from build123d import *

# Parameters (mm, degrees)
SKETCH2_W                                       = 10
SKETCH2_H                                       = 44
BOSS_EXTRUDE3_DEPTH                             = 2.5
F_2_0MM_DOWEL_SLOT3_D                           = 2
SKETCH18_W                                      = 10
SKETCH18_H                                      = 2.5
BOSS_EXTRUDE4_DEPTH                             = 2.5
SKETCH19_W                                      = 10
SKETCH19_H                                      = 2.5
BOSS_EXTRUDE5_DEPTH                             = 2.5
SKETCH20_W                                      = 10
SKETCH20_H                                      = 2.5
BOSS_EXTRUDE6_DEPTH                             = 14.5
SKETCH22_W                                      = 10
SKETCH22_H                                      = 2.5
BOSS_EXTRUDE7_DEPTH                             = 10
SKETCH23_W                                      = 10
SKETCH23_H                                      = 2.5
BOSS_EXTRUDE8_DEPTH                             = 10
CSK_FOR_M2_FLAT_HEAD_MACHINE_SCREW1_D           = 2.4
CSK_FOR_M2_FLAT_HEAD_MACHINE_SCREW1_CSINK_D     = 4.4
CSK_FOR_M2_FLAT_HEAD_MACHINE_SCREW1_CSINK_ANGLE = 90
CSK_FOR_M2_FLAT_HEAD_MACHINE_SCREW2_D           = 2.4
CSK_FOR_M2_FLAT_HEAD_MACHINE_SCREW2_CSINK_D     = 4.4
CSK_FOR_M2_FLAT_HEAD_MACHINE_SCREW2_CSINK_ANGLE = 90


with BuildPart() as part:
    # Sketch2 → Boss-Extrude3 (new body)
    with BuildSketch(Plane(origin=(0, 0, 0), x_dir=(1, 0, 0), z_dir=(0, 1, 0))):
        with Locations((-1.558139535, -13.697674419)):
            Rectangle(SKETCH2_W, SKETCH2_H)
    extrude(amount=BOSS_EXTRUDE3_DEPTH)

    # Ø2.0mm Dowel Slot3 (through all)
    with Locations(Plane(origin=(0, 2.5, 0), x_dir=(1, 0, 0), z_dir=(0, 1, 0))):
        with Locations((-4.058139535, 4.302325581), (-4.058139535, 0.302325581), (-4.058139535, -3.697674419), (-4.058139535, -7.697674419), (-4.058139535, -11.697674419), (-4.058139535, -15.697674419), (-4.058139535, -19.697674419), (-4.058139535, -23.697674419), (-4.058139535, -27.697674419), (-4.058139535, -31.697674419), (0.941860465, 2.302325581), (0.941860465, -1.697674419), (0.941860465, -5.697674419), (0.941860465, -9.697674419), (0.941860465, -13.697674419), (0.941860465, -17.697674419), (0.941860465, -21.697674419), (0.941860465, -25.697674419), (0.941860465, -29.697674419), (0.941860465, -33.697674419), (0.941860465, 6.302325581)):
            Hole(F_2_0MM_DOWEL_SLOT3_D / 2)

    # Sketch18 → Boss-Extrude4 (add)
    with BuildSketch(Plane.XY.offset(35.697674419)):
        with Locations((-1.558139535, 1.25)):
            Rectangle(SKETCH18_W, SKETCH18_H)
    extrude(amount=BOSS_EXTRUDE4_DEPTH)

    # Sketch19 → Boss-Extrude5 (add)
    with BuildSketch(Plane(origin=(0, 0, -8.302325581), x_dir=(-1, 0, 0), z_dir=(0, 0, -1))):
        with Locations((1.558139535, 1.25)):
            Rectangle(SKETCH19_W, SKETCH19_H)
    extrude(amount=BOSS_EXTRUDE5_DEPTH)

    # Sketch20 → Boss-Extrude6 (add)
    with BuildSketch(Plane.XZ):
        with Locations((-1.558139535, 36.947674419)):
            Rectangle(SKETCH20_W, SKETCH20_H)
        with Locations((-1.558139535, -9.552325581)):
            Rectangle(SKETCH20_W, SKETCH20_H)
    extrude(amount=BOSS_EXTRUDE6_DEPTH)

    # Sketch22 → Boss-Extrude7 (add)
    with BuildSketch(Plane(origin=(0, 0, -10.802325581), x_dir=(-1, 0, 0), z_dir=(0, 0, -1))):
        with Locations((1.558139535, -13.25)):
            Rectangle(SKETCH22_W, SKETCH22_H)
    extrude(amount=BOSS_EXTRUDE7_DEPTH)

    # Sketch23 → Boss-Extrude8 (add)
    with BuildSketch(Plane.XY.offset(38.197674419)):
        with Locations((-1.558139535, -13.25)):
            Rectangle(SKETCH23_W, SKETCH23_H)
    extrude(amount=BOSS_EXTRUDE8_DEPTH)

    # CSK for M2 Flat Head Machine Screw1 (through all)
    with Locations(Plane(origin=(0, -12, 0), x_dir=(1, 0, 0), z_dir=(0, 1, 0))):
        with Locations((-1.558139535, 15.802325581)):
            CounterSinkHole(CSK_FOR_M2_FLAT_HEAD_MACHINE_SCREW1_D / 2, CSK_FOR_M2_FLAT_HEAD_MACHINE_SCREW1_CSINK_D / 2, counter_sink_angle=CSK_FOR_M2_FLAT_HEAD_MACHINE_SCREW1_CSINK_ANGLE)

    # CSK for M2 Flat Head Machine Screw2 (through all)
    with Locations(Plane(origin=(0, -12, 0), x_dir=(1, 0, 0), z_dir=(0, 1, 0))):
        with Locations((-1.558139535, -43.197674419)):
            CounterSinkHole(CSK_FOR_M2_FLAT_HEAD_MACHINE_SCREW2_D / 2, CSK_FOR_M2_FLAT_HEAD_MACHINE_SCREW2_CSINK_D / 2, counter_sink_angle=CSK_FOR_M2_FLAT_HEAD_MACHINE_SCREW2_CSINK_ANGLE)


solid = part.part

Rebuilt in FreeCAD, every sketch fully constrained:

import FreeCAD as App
import Part
import Sketcher

V = App.Vector
Q = App.Units.Quantity


def add_polygon(sketch, points):
    """Adds a closed chain of lines whose ends are joined by coincident constraints."""
    first, n = sketch.GeometryCount, len(points)
    for a, b in zip(points, points[1:] + points[:1]):
        sketch.addGeometry(Part.LineSegment(App.Vector(*a, 0), App.Vector(*b, 0)), False)
    for i in range(n):
        sketch.addConstraint(Sketcher.Constraint("Coincident", first + i, 2, first + (i + 1) % n, 1))

doc = App.newDocument("Part")
body = doc.addObject("PartDesign::Body", "Body")

# Sketch on XZ plane
sketch1 = doc.addObject("Sketcher::SketchObject", "Sketch")
body.addObject(sketch1)
sketch1.AttachmentSupport = (doc.XZ_Plane, [""])
sketch1.MapMode = "FlatFace"
add_polygon(sketch1, [(-7, -8), (-7, 36), (3, 36), (3, -8)])  # lines 0-3
sketch1.addConstraint(Sketcher.Constraint("Vertical", 0))
sketch1.addConstraint(Sketcher.Constraint("Horizontal", 1))
sketch1.addConstraint(Sketcher.Constraint("Vertical", 2))
sketch1.addConstraint(Sketcher.Constraint("Horizontal", 3))
sketch1.addConstraint(Sketcher.Constraint("DistanceX", 1, 1, 1, 2, Q("10 mm")))
sketch1.addConstraint(Sketcher.Constraint("DistanceY", 0, 1, 0, 2, Q("44 mm")))
sketch1.addConstraint(Sketcher.Constraint("DistanceX", 0, 2, -1, 1, Q("6.55814 mm")))
sketch1.addConstraint(Sketcher.Constraint("DistanceY", -1, 1, 0, 2, Q("35.697674 mm")))
pad1 = doc.addObject("PartDesign::Pad", "Pad")
body.addObject(pad1)
pad1.Profile = sketch1
pad1.Length = 2.5
pad1.Reversed = True

# Sketch on XZ plane
sketch2 = doc.addObject("Sketcher::SketchObject", "Sketch001")
body.addObject(sketch2)
sketch2.AttachmentSupport = (doc.XZ_Plane, [""])
sketch2.MapMode = "FlatFace"
sketch2.AttachmentOffset = App.Placement(V(0, 0, -2.5), App.Rotation())
sketch2.addGeometry(Part.Circle(V(-4.1, -4.3, 0), V(0, 0, 1), 1), False)
sketch2.addGeometry(Part.Circle(V(-4.1, -0.3, 0), V(0, 0, 1), 1), False)
sketch2.addGeometry(Part.Circle(V(-4.1, 3.7, 0), V(0, 0, 1), 1), False)
sketch2.addGeometry(Part.Circle(V(-4.1, 7.7, 0), V(0, 0, 1), 1), False)
sketch2.addGeometry(Part.Circle(V(-4.1, 11.7, 0), V(0, 0, 1), 1), False)
sketch2.addGeometry(Part.Circle(V(-4.1, 15.7, 0), V(0, 0, 1), 1), False)
sketch2.addGeometry(Part.Circle(V(-4.1, 19.7, 0), V(0, 0, 1), 1), False)
sketch2.addGeometry(Part.Circle(V(-4.1, 23.7, 0), V(0, 0, 1), 1), False)
sketch2.addGeometry(Part.Circle(V(-4.1, 27.7, 0), V(0, 0, 1), 1), False)
sketch2.addGeometry(Part.Circle(V(-4.1, 31.7, 0), V(0, 0, 1), 1), False)
sketch2.addGeometry(Part.Circle(V(0.9, -2.3, 0), V(0, 0, 1), 1), False)
sketch2.addGeometry(Part.Circle(V(0.9, 1.7, 0), V(0, 0, 1), 1), False)
sketch2.addGeometry(Part.Circle(V(0.9, 5.7, 0), V(0, 0, 1), 1), False)
sketch2.addGeometry(Part.Circle(V(0.9, 9.7, 0), V(0, 0, 1), 1), False)
sketch2.addGeometry(Part.Circle(V(0.9, 13.7, 0), V(0, 0, 1), 1), False)
sketch2.addGeometry(Part.Circle(V(0.9, 17.7, 0), V(0, 0, 1), 1), False)
sketch2.addGeometry(Part.Circle(V(0.9, 21.7, 0), V(0, 0, 1), 1), False)
sketch2.addGeometry(Part.Circle(V(0.9, 25.7, 0), V(0, 0, 1), 1), False)
sketch2.addGeometry(Part.Circle(V(0.9, 29.7, 0), V(0, 0, 1), 1), False)
sketch2.addGeometry(Part.Circle(V(0.9, 33.7, 0), V(0, 0, 1), 1), False)
sketch2.addGeometry(Part.Circle(V(0.9, -6.3, 0), V(0, 0, 1), 1), False)
sketch2.addConstraint(Sketcher.Constraint("Equal", 0, 1))
sketch2.addConstraint(Sketcher.Constraint("Equal", 1, 2))
sketch2.addConstraint(Sketcher.Constraint("Equal", 2, 3))
sketch2.addConstraint(Sketcher.Constraint("Equal", 3, 4))
sketch2.addConstraint(Sketcher.Constraint("Equal", 4, 5))
sketch2.addConstraint(Sketcher.Constraint("Equal", 5, 6))
sketch2.addConstraint(Sketcher.Constraint("Equal", 6, 7))
sketch2.addConstraint(Sketcher.Constraint("Equal", 7, 8))
sketch2.addConstraint(Sketcher.Constraint("Equal", 8, 9))
sketch2.addConstraint(Sketcher.Constraint("Equal", 9, 10))
sketch2.addConstraint(Sketcher.Constraint("Equal", 10, 11))
sketch2.addConstraint(Sketcher.Constraint("Equal", 11, 12))
sketch2.addConstraint(Sketcher.Constraint("Equal", 12, 13))
sketch2.addConstraint(Sketcher.Constraint("Equal", 13, 14))
sketch2.addConstraint(Sketcher.Constraint("Equal", 14, 15))
sketch2.addConstraint(Sketcher.Constraint("Equal", 15, 16))
sketch2.addConstraint(Sketcher.Constraint("Equal", 16, 17))
sketch2.addConstraint(Sketcher.Constraint("Equal", 17, 18))
sketch2.addConstraint(Sketcher.Constraint("Equal", 18, 19))
sketch2.addConstraint(Sketcher.Constraint("Equal", 19, 20))
sketch2.addConstraint(Sketcher.Constraint("Vertical", 0, 3, 1, 3))
sketch2.addConstraint(Sketcher.Constraint("Vertical", 1, 3, 2, 3))
sketch2.addConstraint(Sketcher.Constraint("Vertical", 2, 3, 3, 3))
sketch2.addConstraint(Sketcher.Constraint("Vertical", 3, 3, 4, 3))
sketch2.addConstraint(Sketcher.Constraint("Vertical", 4, 3, 5, 3))
sketch2.addConstraint(Sketcher.Constraint("Vertical", 5, 3, 6, 3))
sketch2.addConstraint(Sketcher.Constraint("Vertical", 6, 3, 7, 3))
sketch2.addConstraint(Sketcher.Constraint("Vertical", 7, 3, 8, 3))
sketch2.addConstraint(Sketcher.Constraint("Vertical", 8, 3, 9, 3))
sketch2.addConstraint(Sketcher.Constraint("Vertical", 10, 3, 11, 3))
sketch2.addConstraint(Sketcher.Constraint("Vertical", 11, 3, 12, 3))
sketch2.addConstraint(Sketcher.Constraint("Vertical", 12, 3, 13, 3))
sketch2.addConstraint(Sketcher.Constraint("Vertical", 13, 3, 14, 3))
sketch2.addConstraint(Sketcher.Constraint("Vertical", 14, 3, 15, 3))
sketch2.addConstraint(Sketcher.Constraint("Vertical", 15, 3, 16, 3))
sketch2.addConstraint(Sketcher.Constraint("Vertical", 16, 3, 17, 3))
sketch2.addConstraint(Sketcher.Constraint("Vertical", 17, 3, 18, 3))
sketch2.addConstraint(Sketcher.Constraint("Vertical", 18, 3, 19, 3))
sketch2.addConstraint(Sketcher.Constraint("Vertical", 19, 3, 20, 3))
sketch2.addConstraint(Sketcher.Constraint("Diameter", 0, Q("2 mm")))
sketch2.addConstraint(Sketcher.Constraint("DistanceY", 0, 3, 1, 3, Q("4 mm")))
sketch2.addConstraint(Sketcher.Constraint("DistanceY", 1, 3, 2, 3, Q("4 mm")))
sketch2.addConstraint(Sketcher.Constraint("DistanceY", 2, 3, 3, 3, Q("4 mm")))
sketch2.addConstraint(Sketcher.Constraint("DistanceY", 3, 3, 4, 3, Q("4 mm")))
sketch2.addConstraint(Sketcher.Constraint("DistanceY", 4, 3, 5, 3, Q("4 mm")))
sketch2.addConstraint(Sketcher.Constraint("DistanceY", 5, 3, 6, 3, Q("4 mm")))
sketch2.addConstraint(Sketcher.Constraint("DistanceY", 6, 3, 7, 3, Q("4 mm")))
sketch2.addConstraint(Sketcher.Constraint("DistanceY", 7, 3, 8, 3, Q("4 mm")))
sketch2.addConstraint(Sketcher.Constraint("DistanceY", 8, 3, 9, 3, Q("4 mm")))
sketch2.addConstraint(Sketcher.Constraint("DistanceX", 0, 3, 10, 3, Q("5 mm")))
sketch2.addConstraint(Sketcher.Constraint("DistanceY", 0, 3, 10, 3, Q("2 mm")))
sketch2.addConstraint(Sketcher.Constraint("DistanceY", 10, 3, 11, 3, Q("4 mm")))
sketch2.addConstraint(Sketcher.Constraint("DistanceY", 11, 3, 12, 3, Q("4 mm")))
sketch2.addConstraint(Sketcher.Constraint("DistanceY", 12, 3, 13, 3, Q("4 mm")))
sketch2.addConstraint(Sketcher.Constraint("DistanceY", 13, 3, 14, 3, Q("4 mm")))
sketch2.addConstraint(Sketcher.Constraint("DistanceY", 14, 3, 15, 3, Q("4 mm")))
sketch2.addConstraint(Sketcher.Constraint("DistanceY", 15, 3, 16, 3, Q("4 mm")))
sketch2.addConstraint(Sketcher.Constraint("DistanceY", 16, 3, 17, 3, Q("4 mm")))
sketch2.addConstraint(Sketcher.Constraint("DistanceY", 17, 3, 18, 3, Q("4 mm")))
sketch2.addConstraint(Sketcher.Constraint("DistanceY", 18, 3, 19, 3, Q("4 mm")))
sketch2.addConstraint(Sketcher.Constraint("DistanceY", 20, 3, 10, 3, Q("4 mm")))
sketch2.addConstraint(Sketcher.Constraint("DistanceX", 0, 3, -1, 1, Q("4.05814 mm")))
sketch2.addConstraint(Sketcher.Constraint("DistanceY", 0, 3, -1, 1, Q("4.302326 mm")))
doc.recompute()
hole = doc.addObject("PartDesign::Hole", "Hole")
body.addObject(hole)
hole.Profile = sketch2
hole.ThreadType = "None"
hole.Diameter = 2
hole.DepthType = "ThroughAll"
hole.Reversed = True

# Sketch on XY plane
sketch3 = doc.addObject("Sketcher::SketchObject", "Sketch002")
body.addObject(sketch3)
sketch3.AttachmentSupport = (doc.XY_Plane, [""])
sketch3.MapMode = "FlatFace"
sketch3.AttachmentOffset = App.Placement(V(0, 0, 35.697674), App.Rotation())
add_polygon(sketch3, [(-6.6, 2.5), (-6.6, 0), (3.4, 0), (3.4, 2.5)])  # lines 0-3
sketch3.addConstraint(Sketcher.Constraint("Vertical", 0))
sketch3.addConstraint(Sketcher.Constraint("Horizontal", 1))
sketch3.addConstraint(Sketcher.Constraint("Vertical", 2))
sketch3.addConstraint(Sketcher.Constraint("Horizontal", 3))
sketch3.addConstraint(Sketcher.Constraint("PointOnObject", 0, 2, -1))
sketch3.addConstraint(Sketcher.Constraint("DistanceX", 1, 1, 1, 2, Q("10 mm")))
sketch3.addConstraint(Sketcher.Constraint("DistanceY", 0, 2, 0, 1, Q("2.5 mm")))
sketch3.addConstraint(Sketcher.Constraint("DistanceX", 0, 2, -1, 1, Q("6.55814 mm")))
pad2 = doc.addObject("PartDesign::Pad", "Pad001")
body.addObject(pad2)
pad2.Profile = sketch3
pad2.Length = 2.5

# Sketch on XY plane
sketch4 = doc.addObject("Sketcher::SketchObject", "Sketch003")
body.addObject(sketch4)
sketch4.AttachmentSupport = (doc.XY_Plane, [""])
sketch4.MapMode = "FlatFace"
sketch4.AttachmentOffset = App.Placement(V(0, 0, -8.302326), App.Rotation())
add_polygon(sketch4, [(3.4, 2.5), (3.4, 0), (-6.6, 0), (-6.6, 2.5)])  # lines 0-3
sketch4.addConstraint(Sketcher.Constraint("Vertical", 0))
sketch4.addConstraint(Sketcher.Constraint("Horizontal", 1))
sketch4.addConstraint(Sketcher.Constraint("Vertical", 2))
sketch4.addConstraint(Sketcher.Constraint("Horizontal", 3))
sketch4.addConstraint(Sketcher.Constraint("PointOnObject", 0, 2, -1))
sketch4.addConstraint(Sketcher.Constraint("DistanceX", 1, 2, 1, 1, Q("10 mm")))
sketch4.addConstraint(Sketcher.Constraint("DistanceY", 0, 2, 0, 1, Q("2.5 mm")))
sketch4.addConstraint(Sketcher.Constraint("DistanceX", -1, 1, 0, 2, Q("3.44186 mm")))
pad3 = doc.addObject("PartDesign::Pad", "Pad002")
body.addObject(pad3)
pad3.Profile = sketch4
pad3.Length = 2.5
pad3.Reversed = True

# Sketch on XZ plane
sketch5 = doc.addObject("Sketcher::SketchObject", "Sketch004")
body.addObject(sketch5)
sketch5.AttachmentSupport = (doc.XZ_Plane, [""])
sketch5.MapMode = "FlatFace"
add_polygon(sketch5, [(-6.6, 38.2), (-6.6, 35.7), (3.4, 35.7), (3.4, 38.2)])  # lines 0-3
add_polygon(sketch5, [(-6.6, -8.3), (-6.6, -10.8), (3.4, -10.8), (3.4, -8.3)])  # lines 4-7
sketch5.addConstraint(Sketcher.Constraint("Vertical", 0))
sketch5.addConstraint(Sketcher.Constraint("Horizontal", 1))
sketch5.addConstraint(Sketcher.Constraint("Vertical", 2))
sketch5.addConstraint(Sketcher.Constraint("Horizontal", 3))
sketch5.addConstraint(Sketcher.Constraint("Vertical", 4))
sketch5.addConstraint(Sketcher.Constraint("Horizontal", 5))
sketch5.addConstraint(Sketcher.Constraint("Vertical", 6))
sketch5.addConstraint(Sketcher.Constraint("Horizontal", 7))
sketch5.addConstraint(Sketcher.Constraint("Vertical", 3, 2, 4, 2))
sketch5.addConstraint(Sketcher.Constraint("Vertical", 2, 2, 5, 2))
sketch5.addConstraint(Sketcher.Constraint("Equal", 2, 4))
sketch5.addConstraint(Sketcher.Constraint("DistanceX", 1, 1, 1, 2, Q("10 mm")))
sketch5.addConstraint(Sketcher.Constraint("DistanceY", 0, 2, 0, 1, Q("2.5 mm")))
sketch5.addConstraint(Sketcher.Constraint("DistanceY", 4, 2, 3, 2, Q("49 mm")))
sketch5.addConstraint(Sketcher.Constraint("DistanceX", 0, 2, -1, 1, Q("6.55814 mm")))
sketch5.addConstraint(Sketcher.Constraint("DistanceY", -1, 1, 0, 2, Q("35.697674 mm")))
pad4 = doc.addObject("PartDesign::Pad", "Pad003")
body.addObject(pad4)
pad4.Profile = sketch5
pad4.Length = 14.5

# Sketch on XY plane
sketch6 = doc.addObject("Sketcher::SketchObject", "Sketch005")
body.addObject(sketch6)
sketch6.AttachmentSupport = (doc.XY_Plane, [""])
sketch6.MapMode = "FlatFace"
sketch6.AttachmentOffset = App.Placement(V(0, 0, -10.802326), App.Rotation())
add_polygon(sketch6, [(3.4, -12), (3.4, -14.5), (-6.6, -14.5), (-6.6, -12)])  # lines 0-3
sketch6.addConstraint(Sketcher.Constraint("Vertical", 0))
sketch6.addConstraint(Sketcher.Constraint("Horizontal", 1))
sketch6.addConstraint(Sketcher.Constraint("Vertical", 2))
sketch6.addConstraint(Sketcher.Constraint("Horizontal", 3))
sketch6.addConstraint(Sketcher.Constraint("DistanceX", 1, 2, 1, 1, Q("10 mm")))
sketch6.addConstraint(Sketcher.Constraint("DistanceY", 0, 2, 0, 1, Q("2.5 mm")))
sketch6.addConstraint(Sketcher.Constraint("DistanceY", 2, 2, -1, 1, Q("12 mm")))
sketch6.addConstraint(Sketcher.Constraint("DistanceX", -1, 1, 0, 2, Q("3.44186 mm")))
pad5 = doc.addObject("PartDesign::Pad", "Pad004")
body.addObject(pad5)
pad5.Profile = sketch6
pad5.Length = 10
pad5.Reversed = True

# Sketch on XY plane
sketch7 = doc.addObject("Sketcher::SketchObject", "Sketch006")
body.addObject(sketch7)
sketch7.AttachmentSupport = (doc.XY_Plane, [""])
sketch7.MapMode = "FlatFace"
sketch7.AttachmentOffset = App.Placement(V(0, 0, 38.197674), App.Rotation())
add_polygon(sketch7, [(-6.6, -12), (-6.6, -14.5), (3.4, -14.5), (3.4, -12)])  # lines 0-3
sketch7.addConstraint(Sketcher.Constraint("Vertical", 0))
sketch7.addConstraint(Sketcher.Constraint("Horizontal", 1))
sketch7.addConstraint(Sketcher.Constraint("Vertical", 2))
sketch7.addConstraint(Sketcher.Constraint("Horizontal", 3))
sketch7.addConstraint(Sketcher.Constraint("DistanceX", 1, 1, 1, 2, Q("10 mm")))
sketch7.addConstraint(Sketcher.Constraint("DistanceY", 0, 2, 0, 1, Q("2.5 mm")))
sketch7.addConstraint(Sketcher.Constraint("DistanceY", 2, 2, -1, 1, Q("12 mm")))
sketch7.addConstraint(Sketcher.Constraint("DistanceX", 0, 2, -1, 1, Q("6.55814 mm")))
pad6 = doc.addObject("PartDesign::Pad", "Pad005")
body.addObject(pad6)
pad6.Profile = sketch7
pad6.Length = 10

# Sketch on XZ plane
sketch8 = doc.addObject("Sketcher::SketchObject", "Sketch007")
body.addObject(sketch8)
sketch8.AttachmentSupport = (doc.XZ_Plane, [""])
sketch8.MapMode = "FlatFace"
sketch8.AttachmentOffset = App.Placement(V(0, 0, 12), App.Rotation())
sketch8.addGeometry(Part.Circle(V(-1.6, -15.8, 0), V(0, 0, 1), 1.2), False)
sketch8.addConstraint(Sketcher.Constraint("Diameter", 0, Q("2.4 mm")))
sketch8.addConstraint(Sketcher.Constraint("DistanceX", 0, 3, -1, 1, Q("1.55814 mm")))
sketch8.addConstraint(Sketcher.Constraint("DistanceY", 0, 3, -1, 1, Q("15.802326 mm")))
doc.recompute()
hole2 = doc.addObject("PartDesign::Hole", "Hole001")
body.addObject(hole2)
hole2.Profile = sketch8
hole2.ThreadType = "None"
hole2.Diameter = 2.4
hole2.DepthType = "ThroughAll"
hole2.HoleCutType = "Countersink"
hole2.HoleCutDiameter = 4.4
hole2.HoleCutCountersinkAngle = 90
hole2.Reversed = True

# Sketch on XZ plane
sketch9 = doc.addObject("Sketcher::SketchObject", "Sketch008")
body.addObject(sketch9)
sketch9.AttachmentSupport = (doc.XZ_Plane, [""])
sketch9.MapMode = "FlatFace"
sketch9.AttachmentOffset = App.Placement(V(0, 0, 12), App.Rotation())
sketch9.addGeometry(Part.Circle(V(-1.6, 43.2, 0), V(0, 0, 1), 1.2), False)
sketch9.addConstraint(Sketcher.Constraint("Diameter", 0, Q("2.4 mm")))
sketch9.addConstraint(Sketcher.Constraint("DistanceX", 0, 3, -1, 1, Q("1.55814 mm")))
sketch9.addConstraint(Sketcher.Constraint("DistanceY", -1, 1, 0, 3, Q("43.197674 mm")))
doc.recompute()
hole3 = doc.addObject("PartDesign::Hole", "Hole002")
body.addObject(hole3)
hole3.Profile = sketch9
hole3.ThreadType = "None"
hole3.Diameter = 2.4
hole3.DepthType = "ThroughAll"
hole3.HoleCutType = "Countersink"
hole3.HoleCutDiameter = 4.4
hole3.HoleCutCountersinkAngle = 90
hole3.Reversed = True

doc.recompute()
